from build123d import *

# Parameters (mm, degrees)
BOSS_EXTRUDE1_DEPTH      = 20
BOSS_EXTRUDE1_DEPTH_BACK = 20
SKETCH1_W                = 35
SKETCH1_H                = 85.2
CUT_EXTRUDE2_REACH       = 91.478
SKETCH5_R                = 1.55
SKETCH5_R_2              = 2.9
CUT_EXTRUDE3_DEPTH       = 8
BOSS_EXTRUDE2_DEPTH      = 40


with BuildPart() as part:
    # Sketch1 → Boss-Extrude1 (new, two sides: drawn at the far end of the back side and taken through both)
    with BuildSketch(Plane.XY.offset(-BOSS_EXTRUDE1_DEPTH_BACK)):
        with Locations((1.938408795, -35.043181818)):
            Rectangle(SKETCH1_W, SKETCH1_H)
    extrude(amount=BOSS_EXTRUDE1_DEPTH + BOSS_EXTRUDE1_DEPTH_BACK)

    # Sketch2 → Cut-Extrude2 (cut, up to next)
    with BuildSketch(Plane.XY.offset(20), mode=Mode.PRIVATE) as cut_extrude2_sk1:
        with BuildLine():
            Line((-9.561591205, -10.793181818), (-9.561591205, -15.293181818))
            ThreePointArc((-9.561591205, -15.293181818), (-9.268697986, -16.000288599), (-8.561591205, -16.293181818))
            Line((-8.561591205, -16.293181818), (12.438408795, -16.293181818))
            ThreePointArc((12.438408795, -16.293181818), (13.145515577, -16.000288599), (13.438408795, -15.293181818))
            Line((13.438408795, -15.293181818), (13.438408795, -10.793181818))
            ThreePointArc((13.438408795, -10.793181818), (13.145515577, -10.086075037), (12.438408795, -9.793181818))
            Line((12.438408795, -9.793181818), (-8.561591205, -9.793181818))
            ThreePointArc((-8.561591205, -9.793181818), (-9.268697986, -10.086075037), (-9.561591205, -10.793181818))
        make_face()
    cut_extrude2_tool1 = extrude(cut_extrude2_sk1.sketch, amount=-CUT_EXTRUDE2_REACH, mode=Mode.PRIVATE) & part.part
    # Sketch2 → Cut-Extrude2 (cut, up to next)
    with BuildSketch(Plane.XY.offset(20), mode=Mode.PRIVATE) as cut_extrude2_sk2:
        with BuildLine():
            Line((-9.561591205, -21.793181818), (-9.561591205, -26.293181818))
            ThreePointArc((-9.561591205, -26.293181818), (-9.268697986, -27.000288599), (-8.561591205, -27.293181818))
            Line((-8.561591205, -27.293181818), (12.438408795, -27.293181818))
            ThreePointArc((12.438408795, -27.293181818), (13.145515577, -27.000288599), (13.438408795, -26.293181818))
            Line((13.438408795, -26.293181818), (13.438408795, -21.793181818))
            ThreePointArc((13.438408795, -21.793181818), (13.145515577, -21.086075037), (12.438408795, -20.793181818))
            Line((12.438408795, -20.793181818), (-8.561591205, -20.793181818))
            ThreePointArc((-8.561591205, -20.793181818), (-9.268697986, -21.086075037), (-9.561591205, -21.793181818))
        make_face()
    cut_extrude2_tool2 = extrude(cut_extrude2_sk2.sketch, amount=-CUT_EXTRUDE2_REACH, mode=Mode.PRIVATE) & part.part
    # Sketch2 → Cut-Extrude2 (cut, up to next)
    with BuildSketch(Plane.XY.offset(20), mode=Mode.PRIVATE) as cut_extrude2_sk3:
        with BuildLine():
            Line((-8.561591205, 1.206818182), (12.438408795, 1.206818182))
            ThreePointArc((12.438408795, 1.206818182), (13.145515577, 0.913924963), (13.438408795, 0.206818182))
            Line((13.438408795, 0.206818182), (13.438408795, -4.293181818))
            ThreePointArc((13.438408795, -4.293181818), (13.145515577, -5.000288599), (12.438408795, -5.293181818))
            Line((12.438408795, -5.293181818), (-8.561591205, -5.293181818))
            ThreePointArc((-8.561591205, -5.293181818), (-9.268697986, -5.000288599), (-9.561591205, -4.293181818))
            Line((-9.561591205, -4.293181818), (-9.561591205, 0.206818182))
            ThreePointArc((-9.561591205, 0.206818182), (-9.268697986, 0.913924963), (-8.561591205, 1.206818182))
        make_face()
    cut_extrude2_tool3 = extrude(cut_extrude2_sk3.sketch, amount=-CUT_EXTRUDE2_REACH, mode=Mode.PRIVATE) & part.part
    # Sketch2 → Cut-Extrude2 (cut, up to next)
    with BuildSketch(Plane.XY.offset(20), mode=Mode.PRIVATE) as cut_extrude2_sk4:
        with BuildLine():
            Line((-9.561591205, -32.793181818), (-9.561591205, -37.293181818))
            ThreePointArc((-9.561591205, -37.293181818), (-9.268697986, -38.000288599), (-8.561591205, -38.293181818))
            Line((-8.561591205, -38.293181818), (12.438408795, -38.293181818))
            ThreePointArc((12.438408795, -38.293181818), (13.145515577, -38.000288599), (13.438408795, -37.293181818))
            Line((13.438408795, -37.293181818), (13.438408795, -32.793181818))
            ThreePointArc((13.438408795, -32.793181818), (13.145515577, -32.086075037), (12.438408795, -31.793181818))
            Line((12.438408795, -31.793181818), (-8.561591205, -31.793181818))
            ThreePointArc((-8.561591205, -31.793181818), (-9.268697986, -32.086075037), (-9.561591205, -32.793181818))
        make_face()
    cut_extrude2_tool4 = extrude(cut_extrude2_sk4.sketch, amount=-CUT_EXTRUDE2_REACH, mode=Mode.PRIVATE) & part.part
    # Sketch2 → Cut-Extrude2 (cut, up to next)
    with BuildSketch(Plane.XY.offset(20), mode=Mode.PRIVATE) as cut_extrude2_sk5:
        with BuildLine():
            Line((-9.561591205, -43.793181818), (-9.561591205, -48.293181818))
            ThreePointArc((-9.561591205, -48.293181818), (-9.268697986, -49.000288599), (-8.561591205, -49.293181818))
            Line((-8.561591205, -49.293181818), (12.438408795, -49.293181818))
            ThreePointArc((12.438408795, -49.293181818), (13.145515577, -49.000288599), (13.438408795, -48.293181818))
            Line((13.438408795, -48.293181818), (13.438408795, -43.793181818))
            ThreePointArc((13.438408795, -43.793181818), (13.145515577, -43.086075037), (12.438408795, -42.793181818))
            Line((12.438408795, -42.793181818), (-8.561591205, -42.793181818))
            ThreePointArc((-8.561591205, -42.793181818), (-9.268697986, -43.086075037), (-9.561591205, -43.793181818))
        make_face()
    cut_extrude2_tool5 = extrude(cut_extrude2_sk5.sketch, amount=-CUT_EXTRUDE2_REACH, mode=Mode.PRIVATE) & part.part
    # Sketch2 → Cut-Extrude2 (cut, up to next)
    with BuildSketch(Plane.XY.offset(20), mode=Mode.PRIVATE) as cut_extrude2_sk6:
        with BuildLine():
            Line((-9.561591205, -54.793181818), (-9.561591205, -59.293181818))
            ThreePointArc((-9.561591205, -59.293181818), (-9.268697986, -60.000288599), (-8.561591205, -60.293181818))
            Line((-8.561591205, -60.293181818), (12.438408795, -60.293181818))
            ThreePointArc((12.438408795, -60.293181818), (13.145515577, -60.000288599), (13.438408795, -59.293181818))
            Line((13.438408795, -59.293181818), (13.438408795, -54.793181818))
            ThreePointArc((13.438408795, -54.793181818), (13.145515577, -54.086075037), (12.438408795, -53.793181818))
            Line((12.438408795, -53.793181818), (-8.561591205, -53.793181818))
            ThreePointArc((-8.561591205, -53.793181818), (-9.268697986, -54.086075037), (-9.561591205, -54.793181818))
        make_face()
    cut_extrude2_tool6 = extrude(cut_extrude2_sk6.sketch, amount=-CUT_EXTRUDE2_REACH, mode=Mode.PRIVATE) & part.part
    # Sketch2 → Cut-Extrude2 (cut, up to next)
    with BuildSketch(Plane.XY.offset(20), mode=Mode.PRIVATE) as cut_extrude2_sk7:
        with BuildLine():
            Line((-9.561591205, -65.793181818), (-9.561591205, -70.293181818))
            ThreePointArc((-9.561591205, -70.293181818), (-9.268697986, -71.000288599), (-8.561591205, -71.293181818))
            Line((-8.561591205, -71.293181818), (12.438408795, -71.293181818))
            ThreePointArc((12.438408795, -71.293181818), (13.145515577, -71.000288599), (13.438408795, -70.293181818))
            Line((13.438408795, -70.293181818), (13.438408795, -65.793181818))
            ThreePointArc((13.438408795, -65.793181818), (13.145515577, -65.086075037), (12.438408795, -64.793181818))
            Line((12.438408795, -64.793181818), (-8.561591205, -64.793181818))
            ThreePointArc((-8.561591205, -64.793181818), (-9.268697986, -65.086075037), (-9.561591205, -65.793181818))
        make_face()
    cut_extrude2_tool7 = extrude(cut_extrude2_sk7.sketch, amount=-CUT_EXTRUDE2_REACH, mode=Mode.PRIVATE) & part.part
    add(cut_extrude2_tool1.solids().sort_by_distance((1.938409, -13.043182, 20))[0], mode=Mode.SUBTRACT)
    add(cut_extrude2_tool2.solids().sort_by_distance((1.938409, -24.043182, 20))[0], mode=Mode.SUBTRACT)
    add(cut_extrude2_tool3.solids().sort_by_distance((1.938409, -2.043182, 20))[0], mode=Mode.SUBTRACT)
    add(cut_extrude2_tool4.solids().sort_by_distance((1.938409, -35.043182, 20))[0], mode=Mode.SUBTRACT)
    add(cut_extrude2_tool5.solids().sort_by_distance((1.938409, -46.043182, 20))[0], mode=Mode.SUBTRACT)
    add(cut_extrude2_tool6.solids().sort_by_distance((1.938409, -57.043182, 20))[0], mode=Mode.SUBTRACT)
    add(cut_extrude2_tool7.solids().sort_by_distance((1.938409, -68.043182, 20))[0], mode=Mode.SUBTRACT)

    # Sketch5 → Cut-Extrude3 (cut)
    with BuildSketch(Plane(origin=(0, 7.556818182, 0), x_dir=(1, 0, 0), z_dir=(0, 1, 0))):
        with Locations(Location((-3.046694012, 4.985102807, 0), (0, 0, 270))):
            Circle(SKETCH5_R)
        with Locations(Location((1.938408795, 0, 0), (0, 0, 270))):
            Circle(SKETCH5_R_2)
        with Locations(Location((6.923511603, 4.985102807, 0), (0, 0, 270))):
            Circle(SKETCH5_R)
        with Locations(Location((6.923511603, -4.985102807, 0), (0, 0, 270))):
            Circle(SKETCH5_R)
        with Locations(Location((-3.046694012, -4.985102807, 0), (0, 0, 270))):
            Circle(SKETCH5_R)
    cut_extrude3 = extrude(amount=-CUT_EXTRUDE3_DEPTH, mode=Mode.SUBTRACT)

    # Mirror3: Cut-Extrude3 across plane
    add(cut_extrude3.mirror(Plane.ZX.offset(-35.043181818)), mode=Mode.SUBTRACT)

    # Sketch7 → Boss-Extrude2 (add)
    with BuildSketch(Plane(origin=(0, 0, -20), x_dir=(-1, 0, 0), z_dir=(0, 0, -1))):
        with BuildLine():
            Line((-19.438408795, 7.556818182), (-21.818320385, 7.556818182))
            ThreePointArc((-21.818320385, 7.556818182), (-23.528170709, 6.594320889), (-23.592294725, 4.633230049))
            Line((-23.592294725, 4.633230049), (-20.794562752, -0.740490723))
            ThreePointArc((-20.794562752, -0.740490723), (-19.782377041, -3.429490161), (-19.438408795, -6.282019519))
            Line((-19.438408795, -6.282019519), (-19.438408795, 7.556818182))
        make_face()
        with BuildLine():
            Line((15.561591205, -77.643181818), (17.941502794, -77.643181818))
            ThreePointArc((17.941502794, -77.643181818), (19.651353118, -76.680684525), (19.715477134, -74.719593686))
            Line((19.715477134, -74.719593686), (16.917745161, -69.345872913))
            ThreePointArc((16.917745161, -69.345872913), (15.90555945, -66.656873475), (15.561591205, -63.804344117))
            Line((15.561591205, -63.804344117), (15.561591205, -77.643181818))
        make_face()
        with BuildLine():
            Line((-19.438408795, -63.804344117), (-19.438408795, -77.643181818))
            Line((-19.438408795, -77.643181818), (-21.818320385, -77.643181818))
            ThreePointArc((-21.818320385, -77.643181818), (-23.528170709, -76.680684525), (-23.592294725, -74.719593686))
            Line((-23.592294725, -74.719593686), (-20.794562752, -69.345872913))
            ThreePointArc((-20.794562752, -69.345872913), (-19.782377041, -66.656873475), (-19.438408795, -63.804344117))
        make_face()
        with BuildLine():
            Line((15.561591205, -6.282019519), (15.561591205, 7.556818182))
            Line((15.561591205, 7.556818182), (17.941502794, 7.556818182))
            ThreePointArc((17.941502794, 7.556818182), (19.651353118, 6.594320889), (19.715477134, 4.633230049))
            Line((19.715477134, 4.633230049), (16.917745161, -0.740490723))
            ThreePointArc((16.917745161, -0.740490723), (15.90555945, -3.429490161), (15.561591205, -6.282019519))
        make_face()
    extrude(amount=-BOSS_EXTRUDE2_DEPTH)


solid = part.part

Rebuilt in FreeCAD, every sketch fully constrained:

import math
import FreeCAD as App
import Part
import Sketcher

doc = App.newDocument("Part")
body = doc.addObject("PartDesign::Body", "Body")

sketch1 = doc.addObject("Sketcher::SketchObject", "Sketch")
body.addObject(sketch1)
sketch1.AttachmentSupport = (doc.XY_Plane, [""])
sketch1.MapMode = "FlatFace"
sketch1.addGeometry([
    Part.LineSegment(App.Vector(-16, 8, 0), App.Vector(-16, -78, 0)),
    Part.LineSegment(App.Vector(-16, -78, 0), App.Vector(19, -78, 0)),
    Part.LineSegment(App.Vector(19, -78, 0), App.Vector(19, 8, 0)),
    Part.LineSegment(App.Vector(19, 8, 0), App.Vector(-16, 8, 0)),
], False)
sketch1.addConstraint([
    Sketcher.Constraint("Coincident", 0, 2, 1, 1),
    Sketcher.Constraint("Coincident", 1, 2, 2, 1),
    Sketcher.Constraint("Coincident", 2, 2, 3, 1),
    Sketcher.Constraint("Coincident", 3, 2, 0, 1),
    Sketcher.Constraint("Vertical", 0),
    Sketcher.Constraint("Horizontal", 1),
    Sketcher.Constraint("Vertical", 2),
    Sketcher.Constraint("Horizontal", 3),
    Sketcher.Constraint("DistanceX", 1, 1, 1, 2, 35.0),
    Sketcher.Constraint("DistanceY", 0, 2, 0, 1, 85.2),
    Sketcher.Constraint("DistanceX", 0, 2, -1, 1, 15.561591),
    Sketcher.Constraint("DistanceY", 0, 2, -1, 1, 77.643182),
])
pad1 = doc.addObject("PartDesign::Pad", "Pad")
body.addObject(pad1)
pad1.Profile = sketch1
pad1.Type = "TwoLengths"
pad1.Length = 20
pad1.Length2 = 20

sketch2 = doc.addObject("Sketcher::SketchObject", "Sketch001")
body.addObject(sketch2)
sketch2.AttachmentSupport = (doc.XY_Plane, [""])
sketch2.MapMode = "FlatFace"
sketch2.AttachmentOffset = App.Placement(App.Vector(0, 0, 20), App.Rotation())
sketch2.addGeometry([
    Part.LineSegment(App.Vector(-9.6, -10.8, 0), App.Vector(-9.6, -15.3, 0)),
    Part.ArcOfCircle(Part.Circle(App.Vector(-8.6, -15.3, 0), App.Vector(0, 0, 1), 1), math.radians(-180), math.radians(-90)),
    Part.LineSegment(App.Vector(-8.6, -16.3, 0), App.Vector(12.4, -16.3, 0)),
    Part.ArcOfCircle(Part.Circle(App.Vector(12.4, -15.3, 0), App.Vector(0, 0, 1), 1), math.radians(-90), math.radians(0)),
    Part.LineSegment(App.Vector(13.4, -15.3, 0), App.Vector(13.4, -10.8, 0)),
    Part.ArcOfCircle(Part.Circle(App.Vector(12.4, -10.8, 0), App.Vector(0, 0, 1), 1), math.radians(0), math.radians(90)),
    Part.LineSegment(App.Vector(12.4, -9.8, 0), App.Vector(-8.6, -9.8, 0)),
    Part.ArcOfCircle(Part.Circle(App.Vector(-8.6, -10.8, 0), App.Vector(0, 0, 1), 1), math.radians(90), math.radians(180)),
], False)
sketch2.addConstraint([
    Sketcher.Constraint("Tangent", 0, 2, 1, 1),
    Sketcher.Constraint("Tangent", 1, 2, 2, 1),
    Sketcher.Constraint("Tangent", 2, 2, 3, 1),
    Sketcher.Constraint("Tangent", 3, 2, 4, 1),
    Sketcher.Constraint("Tangent", 4, 2, 5, 1),
    Sketcher.Constraint("Tangent", 5, 2, 6, 1),
    Sketcher.Constraint("Tangent", 6, 2, 7, 1),
    Sketcher.Constraint("Tangent", 7, 2, 0, 1),
    Sketcher.Constraint("Vertical", 0),
    Sketcher.Constraint("Horizontal", 2),
    Sketcher.Constraint("Vertical", 4),
    Sketcher.Constraint("Horizontal", 6),
    Sketcher.Constraint("Equal", 1, 3),
    Sketcher.Constraint("Equal", 3, 5),
    Sketcher.Constraint("Equal", 5, 7),
    Sketcher.Constraint("Radius", 1, 1.0),
    Sketcher.Constraint("DistanceX", 2, 1, 2, 2, 21.0),
    Sketcher.Constraint("DistanceY", 0, 2, 0, 1, 4.5),
    Sketcher.Constraint("DistanceX", 1, 3, -1, 1, 8.561591),
    Sketcher.Constraint("DistanceY", 1, 3, -1, 1, 15.293182),
])
pocket1 = doc.addObject("PartDesign::Pocket", "Pocket")
body.addObject(pocket1)
pocket1.Profile = sketch2
pocket1.Type = "UpToFirst"

sketch3 = doc.addObject("Sketcher::SketchObject", "Sketch002")
body.addObject(sketch3)
sketch3.AttachmentSupport = (doc.XY_Plane, [""])
sketch3.MapMode = "FlatFace"
sketch3.AttachmentOffset = App.Placement(App.Vector(0, 0, 20), App.Rotation())
sketch3.addGeometry([
    Part.LineSegment(App.Vector(-9.6, -21.8, 0), App.Vector(-9.6, -26.3, 0)),
    Part.ArcOfCircle(Part.Circle(App.Vector(-8.6, -26.3, 0), App.Vector(0, 0, 1), 1), math.radians(-180), math.radians(-90)),
    Part.LineSegment(App.Vector(-8.6, -27.3, 0), App.Vector(12.4, -27.3, 0)),
    Part.ArcOfCircle(Part.Circle(App.Vector(12.4, -26.3, 0), App.Vector(0, 0, 1), 1), math.radians(-90), math.radians(0)),
    Part.LineSegment(App.Vector(13.4, -26.3, 0), App.Vector(13.4, -21.8, 0)),
    Part.ArcOfCircle(Part.Circle(App.Vector(12.4, -21.8, 0), App.Vector(0, 0, 1), 1), math.radians(0), math.radians(90)),
    Part.LineSegment(App.Vector(12.4, -20.8, 0), App.Vector(-8.6, -20.8, 0)),
    Part.ArcOfCircle(Part.Circle(App.Vector(-8.6, -21.8, 0), App.Vector(0, 0, 1), 1), math.radians(90), math.radians(180)),
], False)
sketch3.addConstraint([
    Sketcher.Constraint("Tangent", 0, 2, 1, 1),
    Sketcher.Constraint("Tangent", 1, 2, 2, 1),
    Sketcher.Constraint("Tangent", 2, 2, 3, 1),
    Sketcher.Constraint("Tangent", 3, 2, 4, 1),
    Sketcher.Constraint("Tangent", 4, 2, 5, 1),
    Sketcher.Constraint("Tangent", 5, 2, 6, 1),
    Sketcher.Constraint("Tangent", 6, 2, 7, 1),
    Sketcher.Constraint("Tangent", 7, 2, 0, 1),
    Sketcher.Constraint("Vertical", 0),
    Sketcher.Constraint("Horizontal", 2),
    Sketcher.Constraint("Vertical", 4),
    Sketcher.Constraint("Horizontal", 6),
    Sketcher.Constraint("Equal", 1, 3),
    Sketcher.Constraint("Equal", 3, 5),
    Sketcher.Constraint("Equal", 5, 7),
    Sketcher.Constraint("Radius", 1, 1.0),
    Sketcher.Constraint("DistanceX", 2, 1, 2, 2, 21.0),
    Sketcher.Constraint("DistanceY", 0, 2, 0, 1, 4.5),
    Sketcher.Constraint("DistanceX", 1, 3, -1, 1, 8.561591),
    Sketcher.Constraint("DistanceY", 1, 3, -1, 1, 26.293182),
])
pocket2 = doc.addObject("PartDesign::Pocket", "Pocket001")
body.addObject(pocket2)
pocket2.Profile = sketch3
pocket2.Type = "UpToFirst"

sketch4 = doc.addObject("Sketcher::SketchObject", "Sketch003")
body.addObject(sketch4)
sketch4.AttachmentSupport = (doc.XY_Plane, [""])
sketch4.MapMode = "FlatFace"
sketch4.AttachmentOffset = App.Placement(App.Vector(0, 0, 20), App.Rotation())
sketch4.addGeometry([
    Part.LineSegment(App.Vector(12.4, 1.2, 0), App.Vector(-8.6, 1.2, 0)),
    Part.ArcOfCircle(Part.Circle(App.Vector(-8.6, 0.2, 0), App.Vector(0, 0, 1), 1), math.radians(90), math.radians(180)),
    Part.LineSegment(App.Vector(-9.6, 0.2, 0), App.Vector(-9.6, -4.3, 0)),
    Part.ArcOfCircle(Part.Circle(App.Vector(-8.6, -4.3, 0), App.Vector(0, 0, 1), 1), math.radians(-180), math.radians(-90)),
    Part.LineSegment(App.Vector(-8.6, -5.3, 0), App.Vector(12.4, -5.3, 0)),
    Part.ArcOfCircle(Part.Circle(App.Vector(12.4, -4.3, 0), App.Vector(0, 0, 1), 1), math.radians(-90), math.radians(0)),
    Part.LineSegment(App.Vector(13.4, -4.3, 0), App.Vector(13.4, 0.2, 0)),
    Part.ArcOfCircle(Part.Circle(App.Vector(12.4, 0.2, 0), App.Vector(0, 0, 1), 1), math.radians(0), math.radians(90)),
], False)
sketch4.addConstraint([
    Sketcher.Constraint("Tangent", 0, 2, 1, 1),
    Sketcher.Constraint("Tangent", 1, 2, 2, 1),
    Sketcher.Constraint("Tangent", 2, 2, 3, 1),
    Sketcher.Constraint("Tangent", 3, 2, 4, 1),
    Sketcher.Constraint("Tangent", 4, 2, 5, 1),
    Sketcher.Constraint("Tangent", 5, 2, 6, 1),
    Sketcher.Constraint("Tangent", 6, 2, 7, 1),
    Sketcher.Constraint("Tangent", 7, 2, 0, 1),
    Sketcher.Constraint("Horizontal", 0),
    Sketcher.Constraint("Vertical", 2),
    Sketcher.Constraint("Horizontal", 4),
    Sketcher.Constraint("Vertical", 6),
    Sketcher.Constraint("Equal", 1, 3),
    Sketcher.Constraint("Equal", 3, 5),
    Sketcher.Constraint("Equal", 5, 7),
    Sketcher.Constraint("Radius", 1, 1.0),
    Sketcher.Constraint("DistanceX", 0, 2, 0, 1, 21.0),
    Sketcher.Constraint("DistanceY", 2, 2, 2, 1, 4.5),
    Sketcher.Constraint("DistanceX", 1, 3, -1, 1, 8.561591),
    Sketcher.Constraint("DistanceY", -1, 1, 1, 3, 0.206818),
])
pocket3 = doc.addObject("PartDesign::Pocket", "Pocket002")
body.addObject(pocket3)
pocket3.Profile = sketch4
pocket3.Type = "UpToFirst"

sketch5 = doc.addObject("Sketcher::SketchObject", "Sketch004")
body.addObject(sketch5)
sketch5.AttachmentSupport = (doc.XY_Plane, [""])
sketch5.MapMode = "FlatFace"
sketch5.AttachmentOffset = App.Placement(App.Vector(0, 0, 20), App.Rotation())
sketch5.addGeometry([
    Part.LineSegment(App.Vector(-9.6, -32.8, 0), App.Vector(-9.6, -37.3, 0)),
    Part.ArcOfCircle(Part.Circle(App.Vector(-8.6, -37.3, 0), App.Vector(0, 0, 1), 1), math.radians(-180), math.radians(-90)),
    Part.LineSegment(App.Vector(-8.6, -38.3, 0), App.Vector(12.4, -38.3, 0)),
    Part.ArcOfCircle(Part.Circle(App.Vector(12.4, -37.3, 0), App.Vector(0, 0, 1), 1), math.radians(-90), math.radians(0)),
    Part.LineSegment(App.Vector(13.4, -37.3, 0), App.Vector(13.4, -32.8, 0)),
    Part.ArcOfCircle(Part.Circle(App.Vector(12.4, -32.8, 0), App.Vector(0, 0, 1), 1), math.radians(0), math.radians(90)),
    Part.LineSegment(App.Vector(12.4, -31.8, 0), App.Vector(-8.6, -31.8, 0)),
    Part.ArcOfCircle(Part.Circle(App.Vector(-8.6, -32.8, 0), App.Vector(0, 0, 1), 1), math.radians(90), math.radians(180)),
], False)
sketch5.addConstraint([
    Sketcher.Constraint("Tangent", 0, 2, 1, 1),
    Sketcher.Constraint("Tangent", 1, 2, 2, 1),
    Sketcher.Constraint("Tangent", 2, 2, 3, 1),
    Sketcher.Constraint("Tangent", 3, 2, 4, 1),
    Sketcher.Constraint("Tangent", 4, 2, 5, 1),
    Sketcher.Constraint("Tangent", 5, 2, 6, 1),
    Sketcher.Constraint("Tangent", 6, 2, 7, 1),
    Sketcher.Constraint("Tangent", 7, 2, 0, 1),
    Sketcher.Constraint("Vertical", 0),
    Sketcher.Constraint("Horizontal", 2),
    Sketcher.Constraint("Vertical", 4),
    Sketcher.Constraint("Horizontal", 6),
    Sketcher.Constraint("Equal", 1, 3),
    Sketcher.Constraint("Equal", 3, 5),
    Sketcher.Constraint("Equal", 5, 7),
    Sketcher.Constraint("Radius", 1, 1.0),
    Sketcher.Constraint("DistanceX", 2, 1, 2, 2, 21.0),
    Sketcher.Constraint("DistanceY", 0, 2, 0, 1, 4.5),
    Sketcher.Constraint("DistanceX", 1, 3, -1, 1, 8.561591),
    Sketcher.Constraint("DistanceY", 1, 3, -1, 1, 37.293182),
])
pocket4 = doc.addObject("PartDesign::Pocket", "Pocket003")
body.addObject(pocket4)
pocket4.Profile = sketch5
pocket4.Type = "UpToFirst"

sketch6 = doc.addObject("Sketcher::SketchObject", "Sketch005")
body.addObject(sketch6)
sketch6.AttachmentSupport = (doc.XY_Plane, [""])
sketch6.MapMode = "FlatFace"
sketch6.AttachmentOffset = App.Placement(App.Vector(0, 0, 20), App.Rotation())
sketch6.addGeometry([
    Part.LineSegment(App.Vector(-9.6, -43.8, 0), App.Vector(-9.6, -48.3, 0)),
    Part.ArcOfCircle(Part.Circle(App.Vector(-8.6, -48.3, 0), App.Vector(0, 0, 1), 1), math.radians(-180), math.radians(-90)),
    Part.LineSegment(App.Vector(-8.6, -49.3, 0), App.Vector(12.4, -49.3, 0)),
    Part.ArcOfCircle(Part.Circle(App.Vector(12.4, -48.3, 0), App.Vector(0, 0, 1), 1), math.radians(-90), math.radians(0)),
    Part.LineSegment(App.Vector(13.4, -48.3, 0), App.Vector(13.4, -43.8, 0)),
    Part.ArcOfCircle(Part.Circle(App.Vector(12.4, -43.8, 0), App.Vector(0, 0, 1), 1), math.radians(0), math.radians(90)),
    Part.LineSegment(App.Vector(12.4, -42.8, 0), App.Vector(-8.6, -42.8, 0)),
    Part.ArcOfCircle(Part.Circle(App.Vector(-8.6, -43.8, 0), App.Vector(0, 0, 1), 1), math.radians(90), math.radians(180)),
], False)
sketch6.addConstraint([
    Sketcher.Constraint("Tangent", 0, 2, 1, 1),
    Sketcher.Constraint("Tangent", 1, 2, 2, 1),
    Sketcher.Constraint("Tangent", 2, 2, 3, 1),
    Sketcher.Constraint("Tangent", 3, 2, 4, 1),
    Sketcher.Constraint("Tangent", 4, 2, 5, 1),
    Sketcher.Constraint("Tangent", 5, 2, 6, 1),
    Sketcher.Constraint("Tangent", 6, 2, 7, 1),
    Sketcher.Constraint("Tangent", 7, 2, 0, 1),
    Sketcher.Constraint("Vertical", 0),
    Sketcher.Constraint("Horizontal", 2),
    Sketcher.Constraint("Vertical", 4),
    Sketcher.Constraint("Horizontal", 6),
    Sketcher.Constraint("Equal", 1, 3),
    Sketcher.Constraint("Equal", 3, 5),
    Sketcher.Constraint("Equal", 5, 7),
    Sketcher.Constraint("Radius", 1, 1.0),
    Sketcher.Constraint("DistanceX", 2, 1, 2, 2, 21.0),
    Sketcher.Constraint("DistanceY", 0, 2, 0, 1, 4.5),
    Sketcher.Constraint("DistanceX", 1, 3, -1, 1, 8.561591),
    Sketcher.Constraint("DistanceY", 1, 3, -1, 1, 48.293182),
])
pocket5 = doc.addObject("PartDesign::Pocket", "Pocket004")
body.addObject(pocket5)
pocket5.Profile = sketch6
pocket5.Type = "UpToFirst"

sketch7 = doc.addObject("Sketcher::SketchObject", "Sketch006")
body.addObject(sketch7)
sketch7.AttachmentSupport = (doc.XY_Plane, [""])
sketch7.MapMode = "FlatFace"
sketch7.AttachmentOffset = App.Placement(App.Vector(0, 0, 20), App.Rotation())
sketch7.addGeometry([
    Part.LineSegment(App.Vector(-9.6, -54.8, 0), App.Vector(-9.6, -59.3, 0)),
    Part.ArcOfCircle(Part.Circle(App.Vector(-8.6, -59.3, 0), App.Vector(0, 0, 1), 1), math.radians(-180), math.radians(-90)),
    Part.LineSegment(App.Vector(-8.6, -60.3, 0), App.Vector(12.4, -60.3, 0)),
    Part.ArcOfCircle(Part.Circle(App.Vector(12.4, -59.3, 0), App.Vector(0, 0, 1), 1), math.radians(-90), math.radians(0)),
    Part.LineSegment(App.Vector(13.4, -59.3, 0), App.Vector(13.4, -54.8, 0)),
    Part.ArcOfCircle(Part.Circle(App.Vector(12.4, -54.8, 0), App.Vector(0, 0, 1), 1), math.radians(0), math.radians(90)),
    Part.LineSegment(App.Vector(12.4, -53.8, 0), App.Vector(-8.6, -53.8, 0)),
    Part.ArcOfCircle(Part.Circle(App.Vector(-8.6, -54.8, 0), App.Vector(0, 0, 1), 1), math.radians(90), math.radians(180)),
], False)
sketch7.addConstraint([
    Sketcher.Constraint("Tangent", 0, 2, 1, 1),
    Sketcher.Constraint("Tangent", 1, 2, 2, 1),
    Sketcher.Constraint("Tangent", 2, 2, 3, 1),
    Sketcher.Constraint("Tangent", 3, 2, 4, 1),
    Sketcher.Constraint("Tangent", 4, 2, 5, 1),
    Sketcher.Constraint("Tangent", 5, 2, 6, 1),
    Sketcher.Constraint("Tangent", 6, 2, 7, 1),
    Sketcher.Constraint("Tangent", 7, 2, 0, 1),
    Sketcher.Constraint("Vertical", 0),
    Sketcher.Constraint("Horizontal", 2),
    Sketcher.Constraint("Vertical", 4),
    Sketcher.Constraint("Horizontal", 6),
    Sketcher.Constraint("Equal", 1, 3),
    Sketcher.Constraint("Equal", 3, 5),
    Sketcher.Constraint("Equal", 5, 7),
    Sketcher.Constraint("Radius", 1, 1.0),
    Sketcher.Constraint("DistanceX", 2, 1, 2, 2, 21.0),
    Sketcher.Constraint("DistanceY", 0, 2, 0, 1, 4.5),
    Sketcher.Constraint("DistanceX", 1, 3, -1, 1, 8.561591),
    Sketcher.Constraint("DistanceY", 1, 3, -1, 1, 59.293182),
])
pocket6 = doc.addObject("PartDesign::Pocket", "Pocket005")
body.addObject(pocket6)
pocket6.Profile = sketch7
pocket6.Type = "UpToFirst"

sketch8 = doc.addObject("Sketcher::SketchObject", "Sketch007")
body.addObject(sketch8)
sketch8.AttachmentSupport = (doc.XY_Plane, [""])
sketch8.MapMode = "FlatFace"
sketch8.AttachmentOffset = App.Placement(App.Vector(0, 0, 20), App.Rotation())
sketch8.addGeometry([
    Part.LineSegment(App.Vector(-9.6, -65.8, 0), App.Vector(-9.6, -70.3, 0)),
    Part.ArcOfCircle(Part.Circle(App.Vector(-8.6, -70.3, 0), App.Vector(0, 0, 1), 1), math.radians(-180), math.radians(-90)),
    Part.LineSegment(App.Vector(-8.6, -71.3, 0), App.Vector(12.4, -71.3, 0)),
    Part.ArcOfCircle(Part.Circle(App.Vector(12.4, -70.3, 0), App.Vector(0, 0, 1), 1), math.radians(-90), math.radians(0)),
    Part.LineSegment(App.Vector(13.4, -70.3, 0), App.Vector(13.4, -65.8, 0)),
    Part.ArcOfCircle(Part.Circle(App.Vector(12.4, -65.8, 0), App.Vector(0, 0, 1), 1), math.radians(0), math.radians(90)),
    Part.LineSegment(App.Vector(12.4, -64.8, 0), App.Vector(-8.6, -64.8, 0)),
    Part.ArcOfCircle(Part.Circle(App.Vector(-8.6, -65.8, 0), App.Vector(0, 0, 1), 1), math.radians(90), math.radians(180)),
], False)
sketch8.addConstraint([
    Sketcher.Constraint("Tangent", 0, 2, 1, 1),
    Sketcher.Constraint("Tangent", 1, 2, 2, 1),
    Sketcher.Constraint("Tangent", 2, 2, 3, 1),
    Sketcher.Constraint("Tangent", 3, 2, 4, 1),
    Sketcher.Constraint("Tangent", 4, 2, 5, 1),
    Sketcher.Constraint("Tangent", 5, 2, 6, 1),
    Sketcher.Constraint("Tangent", 6, 2, 7, 1),
    Sketcher.Constraint("Tangent", 7, 2, 0, 1),
    Sketcher.Constraint("Vertical", 0),
    Sketcher.Constraint("Horizontal", 2),
    Sketcher.Constraint("Vertical", 4),
    Sketcher.Constraint("Horizontal", 6),
    Sketcher.Constraint("Equal", 1, 3),
    Sketcher.Constraint("Equal", 3, 5),
    Sketcher.Constraint("Equal", 5, 7),
    Sketcher.Constraint("Radius", 1, 1.0),
    Sketcher.Constraint("DistanceX", 2, 1, 2, 2, 21.0),
    Sketcher.Constraint("DistanceY", 0, 2, 0, 1, 4.5),
    Sketcher.Constraint("DistanceX", 1, 3, -1, 1, 8.561591),
    Sketcher.Constraint("DistanceY", 1, 3, -1, 1, 70.293182),
])
pocket7 = doc.addObject("PartDesign::Pocket", "Pocket006")
body.addObject(pocket7)
pocket7.Profile = sketch8
pocket7.Type = "UpToFirst"

sketch9 = doc.addObject("Sketcher::SketchObject", "Sketch008")
body.addObject(sketch9)
sketch9.AttachmentSupport = (doc.XZ_Plane, [""])
sketch9.MapMode = "FlatFace"
sketch9.AttachmentOffset = App.Placement(App.Vector(0, 0, -7.556818), App.Rotation())
sketch9.addGeometry([
    Part.Circle(App.Vector(-3, -5, 0), App.Vector(0, 0, 1), 1.6),
    Part.Circle(App.Vector(1.9, 0, 0), App.Vector(0, 0, 1), 2.9),
    Part.Circle(App.Vector(6.9, -5, 0), App.Vector(0, 0, 1), 1.6),
    Part.Circle(App.Vector(6.9, 5, 0), App.Vector(0, 0, 1), 1.6),
    Part.Circle(App.Vector(-3, 5, 0), App.Vector(0, 0, 1), 1.6),
], False)
sketch9.addConstraint([
    Sketcher.Constraint("Equal", 0, 2),
    Sketcher.Constraint("Equal", 2, 3),
    Sketcher.Constraint("Equal", 3, 4),
    Sketcher.Constraint("Symmetric", 2, 3, 3, 3, -1),
    Sketcher.Constraint("Symmetric", 0, 3, 4, 3, -1),
    Sketcher.Constraint("PointOnObject", 1, 3, -1),
    Sketcher.Constraint("Horizontal", 0, 3, 2, 3),
    Sketcher.Constraint("Diameter", 0, 3.1),
    Sketcher.Constraint("Diameter", 1, 5.8),
    Sketcher.Constraint("DistanceX", -1, 1, 1, 3, 1.938409),
    Sketcher.Constraint("DistanceX", -1, 1, 2, 3, 6.923512),
    Sketcher.Constraint("DistanceX", 0, 3, -1, 1, 3.046694),
    Sketcher.Constraint("DistanceY", 0, 3, -1, 1, 4.985103),
])
pocket8 = doc.addObject("PartDesign::Pocket", "Pocket007")
body.addObject(pocket8)
pocket8.Profile = sketch9
pocket8.Length = 8
pocket8.Reversed = True
doc.recompute()

datumplane = doc.addObject("PartDesign::Plane", "DatumPlane")
body.addObject(datumplane)
datumplane.AttachmentSupport = (doc.XZ_Plane, [""])
datumplane.MapMode = "FlatFace"
datumplane.AttachmentOffset = App.Placement(App.Vector(0, 0, 35.043182), App.Rotation())
mirrored = doc.addObject("PartDesign::Mirrored", "Mirrored")
body.addObject(mirrored)
mirrored.Originals = [pocket8]
mirrored.MirrorPlane = (datumplane, [""])
body.Tip = mirrored

sketch10 = doc.addObject("Sketcher::SketchObject", "Sketch009")
body.addObject(sketch10)
sketch10.AttachmentSupport = (doc.XY_Plane, [""])
sketch10.MapMode = "FlatFace"
sketch10.AttachmentOffset = App.Placement(App.Vector(0, 0, -20), App.Rotation())
sketch10.addGeometry([
    Part.LineSegment(App.Vector(19.4, 7.6, 0), App.Vector(21.8, 7.6, 0)),
    Part.ArcOfCircle(Part.Circle(App.Vector(21.8, 5.6, 0), App.Vector(0, 0, 1), 2), math.radians(-28), math.radians(90)),
    Part.LineSegment(App.Vector(23.6, 4.6, 0), App.Vector(20.8, -0.7, 0)),
    Part.ArcOfCircle(Part.Circle(App.Vector(31.4, -6.3, 0), App.Vector(0, 0, 1), 12), math.radians(152), math.radians(180)),
    Part.LineSegment(App.Vector(19.4, -6.3, 0), App.Vector(19.4, 7.6, 0)),
    Part.LineSegment(App.Vector(-15.6, -77.6, 0), App.Vector(-17.9, -77.6, 0)),
    Part.ArcOfCircle(Part.Circle(App.Vector(-17.9, -75.6, 0), App.Vector(0, 0, 1), 2), math.radians(152), math.radians(270)),
    Part.LineSegment(App.Vector(-19.7, -74.7, 0), App.Vector(-16.9, -69.3, 0)),
    Part.ArcOfCircle(Part.Circle(App.Vector(-27.6, -63.8, 0), App.Vector(0, 0, 1), 12), math.radians(-28), math.radians(0)),
    Part.LineSegment(App.Vector(-15.6, -63.8, 0), App.Vector(-15.6, -77.6, 0)),
    Part.LineSegment(App.Vector(19.4, -77.6, 0), App.Vector(19.4, -63.8, 0)),
    Part.ArcOfCircle(Part.Circle(App.Vector(31.4, -63.8, 0), App.Vector(0, 0, 1), 12), math.radians(-180), math.radians(-152)),
    Part.LineSegment(App.Vector(20.8, -69.3, 0), App.Vector(23.6, -74.7, 0)),
    Part.ArcOfCircle(Part.Circle(App.Vector(21.8, -75.6, 0), App.Vector(0, 0, 1), 2), math.radians(-90), math.radians(28)),
    Part.LineSegment(App.Vector(21.8, -77.6, 0), App.Vector(19.4, -77.6, 0)),
    Part.LineSegment(App.Vector(-15.6, 7.6, 0), App.Vector(-15.6, -6.3, 0)),
    Part.ArcOfCircle(Part.Circle(App.Vector(-27.6, -6.3, 0), App.Vector(0, 0, 1), 12), math.radians(0), math.radians(28)),
    Part.LineSegment(App.Vector(-16.9, -0.7, 0), App.Vector(-19.7, 4.6, 0)),
    Part.ArcOfCircle(Part.Circle(App.Vector(-17.9, 5.6, 0), App.Vector(0, 0, 1), 2), math.radians(90), math.radians(208)),
    Part.LineSegment(App.Vector(-17.9, 7.6, 0), App.Vector(-15.6, 7.6, 0)),
], False)
sketch10.addConstraint([
    Sketcher.Constraint("Tangent", 0, 2, 1, 2),
    Sketcher.Constraint("Tangent", 1, 1, 2, 1),
    Sketcher.Constraint("Tangent", 2, 2, 3, 1),
    Sketcher.Constraint("Tangent", 3, 2, 4, 1),
    Sketcher.Constraint("Coincident", 4, 2, 0, 1),
    Sketcher.Constraint("Tangent", 5, 2, 6, 2),
    Sketcher.Constraint("Tangent", 6, 1, 7, 1),
    Sketcher.Constraint("Tangent", 7, 2, 8, 1),
    Sketcher.Constraint("Tangent", 8, 2, 9, 1),
    Sketcher.Constraint("Coincident", 9, 2, 5, 1),
    Sketcher.Constraint("Tangent", 10, 2, 11, 1),
    Sketcher.Constraint("Tangent", 11, 2, 12, 1),
    Sketcher.Constraint("Tangent", 12, 2, 13, 2),
    Sketcher.Constraint("Tangent", 13, 1, 14, 1),
    Sketcher.Constraint("Coincident", 14, 2, 10, 1),
    Sketcher.Constraint("Tangent", 15, 2, 16, 1),
    Sketcher.Constraint("Tangent", 16, 2, 17, 1),
    Sketcher.Constraint("Tangent", 17, 2, 18, 2),
    Sketcher.Constraint("Tangent", 18, 1, 19, 1),
    Sketcher.Constraint("Coincident", 19, 2, 15, 1),
    Sketcher.Constraint("Horizontal", 0),
    Sketcher.Constraint("Vertical", 4),
    Sketcher.Constraint("Horizontal", 5),
    Sketcher.Constraint("Vertical", 9),
    Sketcher.Constraint("Vertical", 10),
    Sketcher.Constraint("Horizontal", 14),
    Sketcher.Constraint("Vertical", 15),
    Sketcher.Constraint("Horizontal", 19),
    Sketcher.Constraint("Equal", 1, 6),
    Sketcher.Constraint("Equal", 3, 8),
    Sketcher.Constraint("Equal", 8, 11),
    Sketcher.Constraint("Equal", 6, 13),
    Sketcher.Constraint("Equal", 11, 16),
    Sketcher.Constraint("Equal", 13, 18),
    Sketcher.Constraint("Parallel", 2, 7),
    Sketcher.Constraint("Parallel", 12, 17),
    Sketcher.Constraint("Horizontal", 8, 3, 11, 3),
    Sketcher.Constraint("Horizontal", 6, 3, 13, 3),
    Sketcher.Constraint("Horizontal", 3, 3, 16, 3),
    Sketcher.Constraint("Horizontal", 1, 3, 18, 3),
    Sketcher.Constraint("Horizontal", 7, 2, 11, 2),
    Sketcher.Constraint("Vertical", 3, 3, 11, 3),
    Sketcher.Constraint("Vertical", 1, 3, 13, 3),
    Sketcher.Constraint("Vertical", 8, 3, 16, 3),
    Sketcher.Constraint("Radius", 1, 2.0),
    Sketcher.Constraint("Radius", 3, 12.0),
    Sketcher.Constraint("DistanceX", 8, 3, 3, 3, 59.0),
    Sketcher.Constraint("DistanceY", 6, 3, 1, 3, 81.2),
    Sketcher.Constraint("DistanceX", 0, 1, 0, 2, 2.379912),
    Sketcher.Constraint("DistanceY", 4, 1, 4, 2, 13.838838),
    Sketcher.Constraint("DistanceX", -1, 1, 1, 3, 21.81832),
    Sketcher.Constraint("DistanceY", -1, 1, 1, 3, 5.556818),
])
pad2 = doc.addObject("PartDesign::Pad", "Pad001")
body.addObject(pad2)
pad2.Profile = sketch10
pad2.Length = 40

doc.recompute()
